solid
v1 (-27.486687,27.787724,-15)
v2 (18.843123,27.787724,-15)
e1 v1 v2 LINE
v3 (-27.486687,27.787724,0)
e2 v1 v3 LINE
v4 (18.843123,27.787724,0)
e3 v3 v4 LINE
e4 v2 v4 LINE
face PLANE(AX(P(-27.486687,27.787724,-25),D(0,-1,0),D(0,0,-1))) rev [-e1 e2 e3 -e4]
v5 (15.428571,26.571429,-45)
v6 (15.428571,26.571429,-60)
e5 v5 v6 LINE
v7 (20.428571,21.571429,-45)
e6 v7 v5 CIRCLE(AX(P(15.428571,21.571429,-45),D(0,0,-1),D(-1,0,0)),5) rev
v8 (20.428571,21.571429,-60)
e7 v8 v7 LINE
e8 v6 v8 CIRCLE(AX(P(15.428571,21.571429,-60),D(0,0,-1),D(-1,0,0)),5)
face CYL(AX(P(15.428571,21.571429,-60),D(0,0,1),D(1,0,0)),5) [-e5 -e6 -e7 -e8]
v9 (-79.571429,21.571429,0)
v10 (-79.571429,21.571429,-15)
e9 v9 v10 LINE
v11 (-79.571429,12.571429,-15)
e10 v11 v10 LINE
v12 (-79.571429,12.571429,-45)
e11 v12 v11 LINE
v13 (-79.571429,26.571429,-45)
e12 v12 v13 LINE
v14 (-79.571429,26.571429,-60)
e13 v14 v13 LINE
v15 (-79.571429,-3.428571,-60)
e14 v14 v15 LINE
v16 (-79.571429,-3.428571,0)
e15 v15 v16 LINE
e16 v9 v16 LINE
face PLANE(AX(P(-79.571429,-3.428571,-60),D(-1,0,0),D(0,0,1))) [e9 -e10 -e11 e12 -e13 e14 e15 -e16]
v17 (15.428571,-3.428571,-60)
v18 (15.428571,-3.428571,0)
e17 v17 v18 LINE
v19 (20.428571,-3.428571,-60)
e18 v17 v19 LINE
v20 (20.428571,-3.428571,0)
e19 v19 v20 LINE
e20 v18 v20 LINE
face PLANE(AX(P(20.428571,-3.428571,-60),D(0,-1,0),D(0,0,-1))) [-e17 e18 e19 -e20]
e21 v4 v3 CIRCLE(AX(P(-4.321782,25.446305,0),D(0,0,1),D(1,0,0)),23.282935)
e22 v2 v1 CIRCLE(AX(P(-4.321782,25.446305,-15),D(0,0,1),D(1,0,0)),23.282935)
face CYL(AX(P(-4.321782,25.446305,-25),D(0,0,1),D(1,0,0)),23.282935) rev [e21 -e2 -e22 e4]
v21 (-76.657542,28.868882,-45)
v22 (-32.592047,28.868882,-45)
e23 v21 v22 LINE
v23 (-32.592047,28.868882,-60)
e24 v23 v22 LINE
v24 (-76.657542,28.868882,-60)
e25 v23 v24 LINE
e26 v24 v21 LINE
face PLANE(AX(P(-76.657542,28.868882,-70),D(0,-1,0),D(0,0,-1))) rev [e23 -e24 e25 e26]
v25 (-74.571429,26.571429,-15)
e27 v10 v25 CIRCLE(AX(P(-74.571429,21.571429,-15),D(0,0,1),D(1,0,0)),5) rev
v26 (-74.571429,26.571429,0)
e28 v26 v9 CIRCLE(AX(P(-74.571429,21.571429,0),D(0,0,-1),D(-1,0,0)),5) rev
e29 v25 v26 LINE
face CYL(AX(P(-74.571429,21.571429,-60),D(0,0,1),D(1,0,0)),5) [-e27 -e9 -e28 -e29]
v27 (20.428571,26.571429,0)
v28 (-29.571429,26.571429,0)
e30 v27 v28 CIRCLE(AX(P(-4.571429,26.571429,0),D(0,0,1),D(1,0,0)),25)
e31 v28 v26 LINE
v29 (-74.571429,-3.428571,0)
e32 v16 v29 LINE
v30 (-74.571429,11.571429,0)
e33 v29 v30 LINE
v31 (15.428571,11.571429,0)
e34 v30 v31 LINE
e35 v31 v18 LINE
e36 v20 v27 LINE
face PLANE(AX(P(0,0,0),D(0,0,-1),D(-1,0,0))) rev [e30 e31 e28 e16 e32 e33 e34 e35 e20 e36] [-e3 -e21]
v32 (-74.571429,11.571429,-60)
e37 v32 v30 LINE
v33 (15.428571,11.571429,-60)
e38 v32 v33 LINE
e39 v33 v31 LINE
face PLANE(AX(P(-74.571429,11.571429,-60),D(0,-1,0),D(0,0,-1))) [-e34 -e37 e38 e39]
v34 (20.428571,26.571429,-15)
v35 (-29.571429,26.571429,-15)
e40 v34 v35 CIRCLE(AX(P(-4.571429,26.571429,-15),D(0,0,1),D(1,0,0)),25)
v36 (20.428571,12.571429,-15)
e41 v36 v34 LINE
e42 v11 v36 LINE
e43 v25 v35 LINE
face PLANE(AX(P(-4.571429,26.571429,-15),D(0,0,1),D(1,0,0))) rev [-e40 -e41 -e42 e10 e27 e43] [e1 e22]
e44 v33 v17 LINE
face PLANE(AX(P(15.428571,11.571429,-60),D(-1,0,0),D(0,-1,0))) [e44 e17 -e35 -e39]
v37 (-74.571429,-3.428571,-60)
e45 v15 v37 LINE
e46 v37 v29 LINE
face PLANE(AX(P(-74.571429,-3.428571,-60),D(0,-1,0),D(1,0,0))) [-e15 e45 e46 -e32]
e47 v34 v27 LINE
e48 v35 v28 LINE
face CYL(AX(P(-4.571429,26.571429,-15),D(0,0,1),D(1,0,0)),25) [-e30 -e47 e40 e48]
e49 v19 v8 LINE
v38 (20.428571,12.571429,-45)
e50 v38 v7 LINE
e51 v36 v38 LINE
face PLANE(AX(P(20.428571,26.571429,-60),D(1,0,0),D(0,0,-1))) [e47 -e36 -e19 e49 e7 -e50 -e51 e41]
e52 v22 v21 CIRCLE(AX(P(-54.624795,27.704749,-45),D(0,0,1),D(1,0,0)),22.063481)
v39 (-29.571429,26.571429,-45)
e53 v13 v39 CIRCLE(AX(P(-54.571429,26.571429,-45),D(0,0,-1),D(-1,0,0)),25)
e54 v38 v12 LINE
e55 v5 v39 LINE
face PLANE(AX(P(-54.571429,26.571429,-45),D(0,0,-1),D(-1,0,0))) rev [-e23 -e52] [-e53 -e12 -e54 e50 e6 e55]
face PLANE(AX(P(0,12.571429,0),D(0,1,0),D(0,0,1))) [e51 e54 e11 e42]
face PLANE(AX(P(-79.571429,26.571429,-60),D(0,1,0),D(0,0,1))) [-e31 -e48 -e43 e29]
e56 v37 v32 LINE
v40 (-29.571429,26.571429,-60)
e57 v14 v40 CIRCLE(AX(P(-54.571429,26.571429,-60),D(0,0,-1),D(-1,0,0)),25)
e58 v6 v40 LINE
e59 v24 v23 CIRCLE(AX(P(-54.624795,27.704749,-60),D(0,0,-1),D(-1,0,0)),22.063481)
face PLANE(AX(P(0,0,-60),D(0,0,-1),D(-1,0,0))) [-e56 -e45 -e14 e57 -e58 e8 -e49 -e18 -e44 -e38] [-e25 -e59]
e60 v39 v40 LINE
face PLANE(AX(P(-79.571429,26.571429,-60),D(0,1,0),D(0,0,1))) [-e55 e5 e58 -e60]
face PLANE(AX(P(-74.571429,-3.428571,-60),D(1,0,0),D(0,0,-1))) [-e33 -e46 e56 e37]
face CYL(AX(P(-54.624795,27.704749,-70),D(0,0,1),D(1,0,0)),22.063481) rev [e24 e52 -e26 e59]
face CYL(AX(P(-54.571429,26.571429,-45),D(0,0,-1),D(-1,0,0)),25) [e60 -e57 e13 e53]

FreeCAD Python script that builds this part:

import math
import FreeCAD as App
import Part
import Sketcher


def edges_at(feature, points):
    """Names of the edges that pass closest to the given points."""
    edges = feature.Shape.Edges
    near = lambda p: min(range(len(edges)), key=lambda i: edges[i].distToShape(Part.Vertex(*p))[0])
    return sorted({f"Edge{near(p) + 1}" for p in points})

doc = App.newDocument("Part")
body = doc.addObject("PartDesign::Body", "Body")

sketch1 = doc.addObject("Sketcher::SketchObject", "Sketch")
body.addObject(sketch1)
sketch1.AttachmentSupport = (doc.XY_Plane, [""])
sketch1.MapMode = "FlatFace"
sketch1.addGeometry([
    Part.LineSegment(App.Vector(-75, -3, 0), App.Vector(-75, 12, 0)),
    Part.LineSegment(App.Vector(-75, 12, 0), App.Vector(15, 12, 0)),
    Part.LineSegment(App.Vector(15, 12, 0), App.Vector(15, -3, 0)),
    Part.LineSegment(App.Vector(15, -3, 0), App.Vector(20, -3, 0)),
    Part.LineSegment(App.Vector(20, -3, 0), App.Vector(20, 27, 0)),
    Part.LineSegment(App.Vector(20, 27, 0), App.Vector(-80, 27, 0)),
    Part.LineSegment(App.Vector(-80, 27, 0), App.Vector(-80, -3, 0)),
    Part.LineSegment(App.Vector(-80, -3, 0), App.Vector(-75, -3, 0)),
], False)
sketch1.addConstraint([
    Sketcher.Constraint("Coincident", 0, 2, 1, 1),
    Sketcher.Constraint("Coincident", 1, 2, 2, 1),
    Sketcher.Constraint("Coincident", 2, 2, 3, 1),
    Sketcher.Constraint("Coincident", 3, 2, 4, 1),
    Sketcher.Constraint("Coincident", 4, 2, 5, 1),
    Sketcher.Constraint("Coincident", 5, 2, 6, 1),
    Sketcher.Constraint("Coincident", 6, 2, 7, 1),
    Sketcher.Constraint("Coincident", 7, 2, 0, 1),
    Sketcher.Constraint("Vertical", 0),
    Sketcher.Constraint("Horizontal", 1),
    Sketcher.Constraint("Vertical", 2),
    Sketcher.Constraint("Horizontal", 3),
    Sketcher.Constraint("Vertical", 4),
    Sketcher.Constraint("Horizontal", 5),
    Sketcher.Constraint("Vertical", 6),
    Sketcher.Constraint("Horizontal", 7),
    Sketcher.Constraint("Horizontal", 3, 2, 6, 2),
    Sketcher.Constraint("Equal", 3, 7),
    Sketcher.Constraint("DistanceX", 1, 1, 1, 2, 90.0),
    Sketcher.Constraint("DistanceX", 3, 1, 3, 2, 5.0),
    Sketcher.Constraint("DistanceY", 0, 1, 0, 2, 15.0),
    Sketcher.Constraint("DistanceY", 4, 1, 4, 2, 30.0),
    Sketcher.Constraint("DistanceX", 0, 2, -1, 1, 74.571429),
    Sketcher.Constraint("DistanceY", -1, 1, 0, 2, 11.571429),
])
pad1 = doc.addObject("PartDesign::Pad", "Pad")
body.addObject(pad1)
pad1.Profile = sketch1
pad1.Length = 60
pad1.Reversed = True

sketch2 = doc.addObject("Sketcher::SketchObject", "Sketch001")
body.addObject(sketch2)
sketch2.AttachmentSupport = (doc.XY_Plane, [""])
sketch2.MapMode = "FlatFace"
sketch2.AttachmentOffset = App.Placement(App.Vector(0, 0, -60), App.Rotation())
sketch2.addGeometry([
    Part.LineSegment(App.Vector(-30, 27, 0), App.Vector(-80, 27, 0)),
    Part.ArcOfCircle(Part.Circle(App.Vector(-55, 27, 0), App.Vector(0, 0, 1), 25), math.radians(0), math.radians(180)),
], False)
sketch2.addConstraint([
    Sketcher.Constraint("Coincident", 0, 1, 1, 1),
    Sketcher.Constraint("Coincident", 1, 2, 0, 2),
    Sketcher.Constraint("Horizontal", 0),
    Sketcher.Constraint("Horizontal", 1, 3, 0, 1),
    Sketcher.Constraint("Radius", 1, 25.0),
    Sketcher.Constraint("DistanceX", 1, 3, -1, 1, 54.571429),
    Sketcher.Constraint("DistanceY", -1, 1, 1, 3, 26.571429),
])
pad2 = doc.addObject("PartDesign::Pad", "Pad001")
body.addObject(pad2)
pad2.Profile = sketch2
pad2.Length = 15

sketch3 = doc.addObject("Sketcher::SketchObject", "Sketch002")
body.addObject(sketch3)
sketch3.AttachmentSupport = (doc.XY_Plane, [""])
sketch3.MapMode = "FlatFace"
sketch3.addGeometry([
    Part.LineSegment(App.Vector(-30, 27, 0), App.Vector(20, 27, 0)),
    Part.ArcOfCircle(Part.Circle(App.Vector(-5, 27, 0), App.Vector(0, 0, 1), 25), math.radians(0), math.radians(180)),
], False)
sketch3.addConstraint([
    Sketcher.Constraint("Coincident", 0, 1, 1, 2),
    Sketcher.Constraint("Coincident", 1, 1, 0, 2),
    Sketcher.Constraint("Horizontal", 0),
    Sketcher.Constraint("Horizontal", 1, 3, 0, 1),
    Sketcher.Constraint("Radius", 1, 25.0),
    Sketcher.Constraint("DistanceX", 1, 3, -1, 1, 4.571429),
    Sketcher.Constraint("DistanceY", -1, 1, 1, 3, 26.571429),
])
pad3 = doc.addObject("PartDesign::Pad", "Pad002")
body.addObject(pad3)
pad3.Profile = sketch3
pad3.Length = 15
pad3.Reversed = True

sketch4 = doc.addObject("Sketcher::SketchObject", "Sketch003")
body.addObject(sketch4)
sketch4.AttachmentSupport = (doc.XY_Plane, [""])
sketch4.MapMode = "FlatFace"
sketch4.addGeometry([
    Part.LineSegment(App.Vector(-27, 28, 0), App.Vector(19, 28, 0)),
    Part.ArcOfCircle(Part.Circle(App.Vector(-4, 25, 0), App.Vector(0, 0, 1), 23), math.radians(6), math.radians(174)),
], False)
sketch4.addConstraint([
    Sketcher.Constraint("Coincident", 0, 1, 1, 2),
    Sketcher.Constraint("Coincident", 1, 1, 0, 2),
    Sketcher.Constraint("Horizontal", 0),
    Sketcher.Constraint("Radius", 1, 23.282935),
    Sketcher.Constraint("DistanceX", 0, 1, 0, 2, 46.329811),
    Sketcher.Constraint("DistanceX", 1, 3, -1, 1, 4.321782),
    Sketcher.Constraint("DistanceY", -1, 1, 1, 3, 25.446305),
])
pocket1 = doc.addObject("PartDesign::Pocket", "Pocket")
body.addObject(pocket1)
pocket1.Profile = sketch4
pocket1.Length = 25

sketch5 = doc.addObject("Sketcher::SketchObject", "Sketch004")
body.addObject(sketch5)
sketch5.AttachmentSupport = (doc.XY_Plane, [""])
sketch5.MapMode = "FlatFace"
sketch5.AttachmentOffset = App.Placement(App.Vector(0, 0, -45), App.Rotation())
sketch5.addGeometry([
    Part.LineSegment(App.Vector(-77, 29, 0), App.Vector(-33, 29, 0)),
    Part.ArcOfCircle(Part.Circle(App.Vector(-55, 28, 0), App.Vector(0, 0, 1), 22), math.radians(3), math.radians(177)),
], False)
sketch5.addConstraint([
    Sketcher.Constraint("Coincident", 0, 1, 1, 2),
    Sketcher.Constraint("Coincident", 1, 1, 0, 2),
    Sketcher.Constraint("Horizontal", 0),
    Sketcher.Constraint("Radius", 1, 22.063481),
    Sketcher.Constraint("DistanceX", 0, 1, 0, 2, 44.065495),
    Sketcher.Constraint("DistanceY", -1, 1, 1, 3, 27.704749),
    Sketcher.Constraint("DistanceX", 1, 3, -1, 1, 54.624795),
])
pocket2 = doc.addObject("PartDesign::Pocket", "Pocket001")
body.addObject(pocket2)
pocket2.Profile = sketch5
pocket2.Length = 25
doc.recompute()

fillet = doc.addObject("PartDesign::Fillet", "Fillet")
body.addObject(fillet)
fillet.Base = (pocket2, edges_at(pocket2, [(-79.571, 26.571, -22.5)]))
fillet.Radius = 5
doc.recompute()

fillet2 = doc.addObject("PartDesign::Fillet", "Fillet001")
body.addObject(fillet2)
fillet2.Base = (fillet, edges_at(fillet, [(20.429, 26.571, -37.5)]))
fillet2.Radius = 5

sketch6 = doc.addObject("Sketcher::SketchObject", "Sketch005")
body.addObject(sketch6)
sketch6.AttachmentSupport = (doc.XZ_Plane, [""])
sketch6.MapMode = "FlatFace"
sketch6.AttachmentOffset = App.Placement(App.Vector(0, 0, -26.571429), App.Rotation())
sketch6.addGeometry([
    Part.LineSegment(App.Vector(-80, -45, 0), App.Vector(-80, -15, 0)),
    Part.LineSegment(App.Vector(-80, -15, 0), App.Vector(20, -15, 0)),
    Part.LineSegment(App.Vector(20, -15, 0), App.Vector(20, -45, 0)),
    Part.LineSegment(App.Vector(20, -45, 0), App.Vector(-80, -45, 0)),
], False)
sketch6.addConstraint([
    Sketcher.Constraint("Coincident", 0, 2, 1, 1),
    Sketcher.Constraint("Coincident", 1, 2, 2, 1),
    Sketcher.Constraint("Coincident", 2, 2, 3, 1),
    Sketcher.Constraint("Coincident", 3, 2, 0, 1),
    Sketcher.Constraint("Vertical", 0),
    Sketcher.Constraint("Horizontal", 1),
    Sketcher.Constraint("Vertical", 2),
    Sketcher.Constraint("Horizontal", 3),
    Sketcher.Constraint("DistanceX", 1, 1, 1, 2, 100.0),
    Sketcher.Constraint("DistanceY", 0, 1, 0, 2, 30.0),
    Sketcher.Constraint("DistanceY", 0, 2, -1, 1, 15.0),
    Sketcher.Constraint("DistanceX", 0, 2, -1, 1, 79.571429),
])
pocket3 = doc.addObject("PartDesign::Pocket", "Pocket002")
body.addObject(pocket3)
pocket3.Profile = sketch6
pocket3.Length = 15
pocket3.Reversed = True

sketch7 = doc.addObject("Sketcher::SketchObject", "Sketch006")
body.addObject(sketch7)
sketch7.AttachmentSupport = (doc.XZ_Plane, [""])
sketch7.MapMode = "FlatFace"
sketch7.AttachmentOffset = App.Placement(App.Vector(0, 0, -11.571429), App.Rotation())
sketch7.addGeometry([
    Part.LineSegment(App.Vector(-80, -45, 0), App.Vector(-80, -15, 0)),
    Part.LineSegment(App.Vector(-80, -15, 0), App.Vector(20, -15, 0)),
    Part.LineSegment(App.Vector(20, -15, 0), App.Vector(20, -45, 0)),
    Part.LineSegment(App.Vector(20, -45, 0), App.Vector(-80, -45, 0)),
], False)
sketch7.addConstraint([
    Sketcher.Constraint("Coincident", 0, 2, 1, 1),
    Sketcher.Constraint("Coincident", 1, 2, 2, 1),
    Sketcher.Constraint("Coincident", 2, 2, 3, 1),
    Sketcher.Constraint("Coincident", 3, 2, 0, 1),
    Sketcher.Constraint("Vertical", 0),
    Sketcher.Constraint("Horizontal", 1),
    Sketcher.Constraint("Vertical", 2),
    Sketcher.Constraint("Horizontal", 3),
    Sketcher.Constraint("DistanceX", 1, 1, 1, 2, 100.0),
    Sketcher.Constraint("DistanceY", 0, 1, 0, 2, 30.0),
    Sketcher.Constraint("DistanceY", 0, 2, -1, 1, 15.0),
    Sketcher.Constraint("DistanceX", 0, 2, -1, 1, 79.571429),
])
pad4 = doc.addObject("PartDesign::Pad", "Pad003")
body.addObject(pad4)
pad4.Profile = sketch7
pad4.Length = 1
pad4.Reversed = True

doc.recompute()
